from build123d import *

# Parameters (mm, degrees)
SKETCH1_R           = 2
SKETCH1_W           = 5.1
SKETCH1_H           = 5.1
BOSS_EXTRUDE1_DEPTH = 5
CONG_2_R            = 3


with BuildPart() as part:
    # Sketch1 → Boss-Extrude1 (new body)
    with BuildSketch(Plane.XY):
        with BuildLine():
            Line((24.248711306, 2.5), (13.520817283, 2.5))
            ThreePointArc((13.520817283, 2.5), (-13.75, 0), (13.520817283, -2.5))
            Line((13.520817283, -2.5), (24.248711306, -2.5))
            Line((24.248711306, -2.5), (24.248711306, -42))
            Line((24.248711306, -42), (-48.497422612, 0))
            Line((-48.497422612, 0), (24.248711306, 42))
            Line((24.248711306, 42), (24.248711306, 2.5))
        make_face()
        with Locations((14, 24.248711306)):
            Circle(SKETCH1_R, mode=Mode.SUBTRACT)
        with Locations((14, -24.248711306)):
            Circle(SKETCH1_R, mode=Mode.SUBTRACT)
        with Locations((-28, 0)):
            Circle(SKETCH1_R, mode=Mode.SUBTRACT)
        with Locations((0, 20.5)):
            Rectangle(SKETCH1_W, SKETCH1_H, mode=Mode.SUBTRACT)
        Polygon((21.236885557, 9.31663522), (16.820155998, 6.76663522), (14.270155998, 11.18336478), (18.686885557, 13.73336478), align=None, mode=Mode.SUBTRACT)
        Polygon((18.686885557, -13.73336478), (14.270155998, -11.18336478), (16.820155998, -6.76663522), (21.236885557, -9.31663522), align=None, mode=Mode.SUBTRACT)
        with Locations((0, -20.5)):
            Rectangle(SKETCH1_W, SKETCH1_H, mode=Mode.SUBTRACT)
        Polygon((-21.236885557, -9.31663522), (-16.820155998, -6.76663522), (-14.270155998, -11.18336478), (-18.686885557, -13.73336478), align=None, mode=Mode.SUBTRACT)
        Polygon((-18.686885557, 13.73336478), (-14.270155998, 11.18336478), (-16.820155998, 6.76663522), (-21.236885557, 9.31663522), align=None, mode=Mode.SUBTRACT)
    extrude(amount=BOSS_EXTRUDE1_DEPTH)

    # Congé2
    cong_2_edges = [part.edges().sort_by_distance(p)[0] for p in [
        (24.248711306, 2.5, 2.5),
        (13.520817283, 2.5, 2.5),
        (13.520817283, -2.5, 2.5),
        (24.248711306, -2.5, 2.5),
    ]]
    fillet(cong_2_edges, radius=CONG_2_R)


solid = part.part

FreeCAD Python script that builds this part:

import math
import FreeCAD as App
import Part
import Sketcher
Q = App.Units.Quantity


def edges_at(feature, points):
    """Names of the edges that pass closest to the given points."""
    edges = feature.Shape.Edges
    near = lambda p: min(range(len(edges)), key=lambda i: edges[i].distToShape(Part.Vertex(*p))[0])
    return sorted({f"Edge{near(p) + 1}" for p in points})

doc = App.newDocument("Part")
body = doc.addObject("PartDesign::Body", "Body")

sketch1 = body.newObject("Sketcher::SketchObject", "Sketch")
sketch1.AttachmentSupport = (doc.getObject("XY_Plane"), [""])
sketch1.MapMode = "FlatFace"
sketch1.addGeometry([
    Part.LineSegment(App.Vector(13.5, 2.5, 0), App.Vector(24.2, 2.5, 0)),
    Part.LineSegment(App.Vector(24.2, 2.5, 0), App.Vector(24.2, 42, 0)),
    Part.LineSegment(App.Vector(24.2, 42, 0), App.Vector(-48.5, 0, 0)),
    Part.LineSegment(App.Vector(-48.5, 0, 0), App.Vector(24.2, -42, 0)),
    Part.LineSegment(App.Vector(24.2, -42, 0), App.Vector(24.2, -2.5, 0)),
    Part.LineSegment(App.Vector(24.2, -2.5, 0), App.Vector(13.5, -2.5, 0)),
    Part.ArcOfCircle(Part.Circle(App.Vector(0, 0, 0), App.Vector(0, 0, 1), 13.8), math.radians(10), math.radians(350)),
    Part.Circle(App.Vector(14, -24.2, 0), App.Vector(0, 0, 1), 2),
    Part.LineSegment(App.Vector(-2.5, -23.1, 0), App.Vector(-2.5, -17.9, 0)),
    Part.LineSegment(App.Vector(-2.5, -17.9, 0), App.Vector(2.5, -17.9, 0)),
    Part.LineSegment(App.Vector(2.5, -17.9, 0), App.Vector(2.5, -23.1, 0)),
    Part.LineSegment(App.Vector(2.5, -23.1, 0), App.Vector(-2.5, -23.1, 0)),
    Part.LineSegment(App.Vector(18.7, -13.7, 0), App.Vector(14.3, -11.2, 0)),
    Part.LineSegment(App.Vector(14.3, -11.2, 0), App.Vector(16.8, -6.8, 0)),
    Part.LineSegment(App.Vector(16.8, -6.8, 0), App.Vector(21.2, -9.3, 0)),
    Part.LineSegment(App.Vector(21.2, -9.3, 0), App.Vector(18.7, -13.7, 0)),
    Part.LineSegment(App.Vector(-21.2, -9.3, 0), App.Vector(-16.8, -6.8, 0)),
    Part.LineSegment(App.Vector(-16.8, -6.8, 0), App.Vector(-14.3, -11.2, 0)),
    Part.LineSegment(App.Vector(-14.3, -11.2, 0), App.Vector(-18.7, -13.7, 0)),
    Part.LineSegment(App.Vector(-18.7, -13.7, 0), App.Vector(-21.2, -9.3, 0)),
    Part.LineSegment(App.Vector(21.2, 9.3, 0), App.Vector(16.8, 6.8, 0)),
    Part.LineSegment(App.Vector(16.8, 6.8, 0), App.Vector(14.3, 11.2, 0)),
    Part.LineSegment(App.Vector(14.3, 11.2, 0), App.Vector(18.7, 13.7, 0)),
    Part.LineSegment(App.Vector(18.7, 13.7, 0), App.Vector(21.2, 9.3, 0)),
    Part.Circle(App.Vector(14, 24.2, 0), App.Vector(0, 0, 1), 2),
    Part.LineSegment(App.Vector(-2.5, 17.9, 0), App.Vector(-2.5, 23.1, 0)),
    Part.LineSegment(App.Vector(-2.5, 23.1, 0), App.Vector(2.5, 23.1, 0)),
    Part.LineSegment(App.Vector(2.5, 23.1, 0), App.Vector(2.5, 17.9, 0)),
    Part.LineSegment(App.Vector(2.5, 17.9, 0), App.Vector(-2.5, 17.9, 0)),
    Part.Circle(App.Vector(-28, 0, 0), App.Vector(0, 0, 1), 2),
    Part.LineSegment(App.Vector(-18.7, 13.7, 0), App.Vector(-14.3, 11.2, 0)),
    Part.LineSegment(App.Vector(-14.3, 11.2, 0), App.Vector(-16.8, 6.8, 0)),
    Part.LineSegment(App.Vector(-16.8, 6.8, 0), App.Vector(-21.2, 9.3, 0)),
    Part.LineSegment(App.Vector(-21.2, 9.3, 0), App.Vector(-18.7, 13.7, 0)),
], False)
sketch1.addConstraint([
    Sketcher.Constraint("Coincident", 0, 2, 1, 1),
    Sketcher.Constraint("Coincident", 1, 2, 2, 1),
    Sketcher.Constraint("Coincident", 2, 2, 3, 1),
    Sketcher.Constraint("Coincident", 3, 2, 4, 1),
    Sketcher.Constraint("Coincident", 4, 2, 5, 1),
    Sketcher.Constraint("Coincident", 5, 2, 6, 2),
    Sketcher.Constraint("Coincident", 6, 1, 0, 1),
    Sketcher.Constraint("Coincident", 8, 2, 9, 1),
    Sketcher.Constraint("Coincident", 9, 2, 10, 1),
    Sketcher.Constraint("Coincident", 10, 2, 11, 1),
    Sketcher.Constraint("Coincident", 11, 2, 8, 1),
    Sketcher.Constraint("Coincident", 12, 2, 13, 1),
    Sketcher.Constraint("Coincident", 13, 2, 14, 1),
    Sketcher.Constraint("Coincident", 14, 2, 15, 1),
    Sketcher.Constraint("Coincident", 15, 2, 12, 1),
    Sketcher.Constraint("Coincident", 16, 2, 17, 1),
    Sketcher.Constraint("Coincident", 17, 2, 18, 1),
    Sketcher.Constraint("Coincident", 18, 2, 19, 1),
    Sketcher.Constraint("Coincident", 19, 2, 16, 1),
    Sketcher.Constraint("Coincident", 20, 2, 21, 1),
    Sketcher.Constraint("Coincident", 21, 2, 22, 1),
    Sketcher.Constraint("Coincident", 22, 2, 23, 1),
    Sketcher.Constraint("Coincident", 23, 2, 20, 1),
    Sketcher.Constraint("Coincident", 25, 2, 26, 1),
    Sketcher.Constraint("Coincident", 26, 2, 27, 1),
    Sketcher.Constraint("Coincident", 27, 2, 28, 1),
    Sketcher.Constraint("Coincident", 28, 2, 25, 1),
    Sketcher.Constraint("Coincident", 30, 2, 31, 1),
    Sketcher.Constraint("Coincident", 31, 2, 32, 1),
    Sketcher.Constraint("Coincident", 32, 2, 33, 1),
    Sketcher.Constraint("Coincident", 33, 2, 30, 1),
    Sketcher.Constraint("Horizontal", 0),
    Sketcher.Constraint("Vertical", 1),
    Sketcher.Constraint("Vertical", 4),
    Sketcher.Constraint("Horizontal", 5),
    Sketcher.Constraint("Vertical", 8),
    Sketcher.Constraint("Horizontal", 9),
    Sketcher.Constraint("Vertical", 10),
    Sketcher.Constraint("Horizontal", 11),
    Sketcher.Constraint("Vertical", 25),
    Sketcher.Constraint("Horizontal", 26),
    Sketcher.Constraint("Vertical", 27),
    Sketcher.Constraint("Horizontal", 28),
    Sketcher.Constraint("Coincident", 6, 3, -1, 1),
    Sketcher.Constraint("Equal", 7, 24),
    Sketcher.Constraint("Equal", 24, 29),
    Sketcher.Constraint("Symmetric", 16, 2, 20, 2, -1, 1),
    Sketcher.Constraint("Symmetric", 17, 2, 21, 2, -1, 1),
    Sketcher.Constraint("Symmetric", 18, 2, 22, 2, -1, 1),
    Sketcher.Constraint("Symmetric", 19, 2, 23, 2, -1, 1),
    Sketcher.Constraint("Symmetric", 10, 2, 25, 2, -1, 1),
    Sketcher.Constraint("Symmetric", 8, 2, 27, 2, -1, 1),
    Sketcher.Constraint("Symmetric", 12, 2, 30, 2, -1, 1),
    Sketcher.Constraint("Symmetric", 13, 2, 31, 2, -1, 1),
    Sketcher.Constraint("Symmetric", 14, 2, 32, 2, -1, 1),
    Sketcher.Constraint("Symmetric", 15, 2, 33, 2, -1, 1),
    Sketcher.Constraint("Symmetric", 13, 2, 16, 2, -2),
    Sketcher.Constraint("Symmetric", 12, 2, 17, 2, -2),
    Sketcher.Constraint("Symmetric", 15, 2, 18, 2, -2),
    Sketcher.Constraint("Symmetric", 14, 2, 19, 2, -2),
    Sketcher.Constraint("Symmetric", 7, 3, 24, 3, -1),
    Sketcher.Constraint("Symmetric", 1, 2, 3, 2, -1),
    Sketcher.Constraint("PointOnObject", 29, 3, -1),
    Sketcher.Constraint("PointOnObject", 2, 2, -1),
    Sketcher.Constraint("Parallel", 3, 12),
    Sketcher.Constraint("Perpendicular", 12, 13),
    Sketcher.Constraint("Perpendicular", 13, 14),
    Sketcher.Constraint("Perpendicular", 14, 15),
    Sketcher.Constraint("Vertical", 5, 2, 6, 1),
    Sketcher.Constraint("Vertical", 11, 2, 25, 2),
    Sketcher.Constraint("Equal", 28, 8),
    Sketcher.Constraint("Equal", 12, 13),
    Sketcher.Constraint("Diameter", 7, 4.0),
    Sketcher.Constraint("Angle", 2, Q("-150 deg")),
    Sketcher.Constraint("Radius", 6, 13.75),
    Sketcher.Constraint("Distance", 2, 84.0),
    Sketcher.Constraint("DistanceX", 9, 1, 9, 2, 5.1),
    Sketcher.Constraint("DistanceY", 1, 1, 1, 2, 39.5),
    Sketcher.Constraint("DistanceX", -1, 1, 7, 3, 14.0),
    Sketcher.Constraint("DistanceX", 29, 3, -1, 1, 28.0),
    Sketcher.Constraint("Distance", 12, 5.1),
    Sketcher.Constraint("DistanceY", 8, 2, -1, 1, 17.95),
    Sketcher.Constraint("DistanceY", 16, 2, 30, 2, 17.95),
    Sketcher.Constraint("DistanceX", 0, 1, 0, 2, 10.727894),
    Sketcher.Constraint("DistanceY", 7, 3, -1, 1, 24.248711),
    Sketcher.Constraint("DistanceX", 5, 2, 12, 2, 0.749339),
])
pad1 = body.newObject("PartDesign::Pad", "Pad")
pad1.Profile = sketch1
pad1.Length = 5
doc.recompute()

fillet = body.newObject("PartDesign::Fillet", "Fillet")
fillet.Base = (pad1, edges_at(pad1, [
    (24.249, 2.5, 2.5),
    (13.521, 2.5, 2.5),
    (13.521, -2.5, 2.5),
    (24.249, -2.5, 2.5),
]))
fillet.Radius = 3

doc.recompute()
